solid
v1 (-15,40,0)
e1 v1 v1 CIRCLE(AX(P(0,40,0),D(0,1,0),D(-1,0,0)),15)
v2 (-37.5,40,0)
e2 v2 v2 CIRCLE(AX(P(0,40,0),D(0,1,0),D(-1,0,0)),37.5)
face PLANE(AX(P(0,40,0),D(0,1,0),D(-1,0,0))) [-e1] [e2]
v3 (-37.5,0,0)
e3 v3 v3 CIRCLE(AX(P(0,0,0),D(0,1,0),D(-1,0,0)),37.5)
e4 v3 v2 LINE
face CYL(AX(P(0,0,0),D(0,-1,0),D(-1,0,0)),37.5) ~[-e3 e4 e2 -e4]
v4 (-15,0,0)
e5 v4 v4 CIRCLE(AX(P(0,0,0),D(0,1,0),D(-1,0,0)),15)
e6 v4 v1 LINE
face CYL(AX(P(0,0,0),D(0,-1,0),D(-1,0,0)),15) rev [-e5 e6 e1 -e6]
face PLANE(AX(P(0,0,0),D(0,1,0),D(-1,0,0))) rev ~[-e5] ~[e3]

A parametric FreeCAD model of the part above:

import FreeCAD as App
import Part
import Sketcher
from FreeCAD import Vector
Q = App.Units.Quantity

doc = App.newDocument("Part")
body = doc.addObject("PartDesign::Body", "Body")

sketch1 = body.newObject("Sketcher::SketchObject", "Sketch")
sketch1.AttachmentSupport = (doc.getObject("XZ_Plane"), [""])
sketch1.MapMode = "FlatFace"
sketch1.addGeometry(Part.Circle(Vector(0, 0, 0), Vector(0, 0, 1), 38), False)
sketch1.addGeometry(Part.Circle(Vector(0, 0, 0), Vector(0, 0, 1), 15), False)
sketch1.addConstraint(Sketcher.Constraint("Coincident", 0, 3, -1, 1))
sketch1.addConstraint(Sketcher.Constraint("Coincident", 1, 3, -1, 1))
sketch1.addConstraint(Sketcher.Constraint("Diameter", 0, Q("75 mm")))
sketch1.addConstraint(Sketcher.Constraint("Diameter", 1, Q("30 mm")))
pad1 = body.newObject("PartDesign::Pad", "Pad")
pad1.Profile = sketch1
pad1.Length = 40
pad1.Reversed = True

doc.recompute()
